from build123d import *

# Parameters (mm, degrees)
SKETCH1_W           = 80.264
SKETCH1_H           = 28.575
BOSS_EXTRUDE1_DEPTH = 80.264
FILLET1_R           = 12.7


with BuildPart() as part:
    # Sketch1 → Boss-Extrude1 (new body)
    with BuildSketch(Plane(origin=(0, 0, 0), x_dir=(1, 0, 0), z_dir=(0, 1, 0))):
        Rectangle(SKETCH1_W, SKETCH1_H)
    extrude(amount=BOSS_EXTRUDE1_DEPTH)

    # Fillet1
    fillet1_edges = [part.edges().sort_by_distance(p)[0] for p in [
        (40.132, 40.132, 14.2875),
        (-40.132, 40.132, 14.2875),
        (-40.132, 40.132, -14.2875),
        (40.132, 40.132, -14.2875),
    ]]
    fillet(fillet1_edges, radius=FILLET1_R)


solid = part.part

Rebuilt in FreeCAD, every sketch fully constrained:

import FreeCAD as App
import Part
import Sketcher

V = App.Vector
Q = App.Units.Quantity


def edges_at(feature, points):
    """Names of the edges that pass closest to the given points."""
    edges = feature.Shape.Edges
    near = lambda p: min(range(len(edges)), key=lambda i: edges[i].distToShape(Part.Vertex(*p))[0])
    return sorted({f"Edge{near(p) + 1}" for p in points})


def add_polygon(sketch, points):
    """Adds a closed chain of lines whose ends are joined by coincident constraints."""
    first, n = sketch.GeometryCount, len(points)
    for a, b in zip(points, points[1:] + points[:1]):
        sketch.addGeometry(Part.LineSegment(App.Vector(*a, 0), App.Vector(*b, 0)), False)
    for i in range(n):
        sketch.addConstraint(Sketcher.Constraint("Coincident", first + i, 2, first + (i + 1) % n, 1))

doc = App.newDocument("Part")
body = doc.addObject("PartDesign::Body", "Body")

# Sketch on XZ plane
sketch1 = body.newObject("Sketcher::SketchObject", "Sketch")
sketch1.AttachmentSupport = (doc.getObject("XZ_Plane"), [""])
sketch1.MapMode = "FlatFace"
add_polygon(sketch1, [(-40, -14), (-40, 14), (40, 14), (40, -14)])  # lines 0-3
sketch1.addConstraint(Sketcher.Constraint("Vertical", 0))
sketch1.addConstraint(Sketcher.Constraint("Horizontal", 1))
sketch1.addConstraint(Sketcher.Constraint("Vertical", 2))
sketch1.addConstraint(Sketcher.Constraint("Horizontal", 3))
sketch1.addConstraint(Sketcher.Constraint("Symmetric", 0, 2, 2, 2, -1, 1))
sketch1.addConstraint(Sketcher.Constraint("DistanceX", 1, 1, 1, 2, Q("3.16 in")))
sketch1.addConstraint(Sketcher.Constraint("DistanceY", 0, 1, 0, 2, Q("1.125 in")))
pad1 = body.newObject("PartDesign::Pad", "Pad")
pad1.Profile = sketch1
pad1.Length = Q("3.16 in")
pad1.Reversed = True
doc.recompute()

fillet = body.newObject("PartDesign::Fillet", "Fillet")
fillet.Base = (pad1, edges_at(pad1, [
    (40.132, 40.132, 14.287),
    (-40.132, 40.132, 14.287),
    (-40.132, 40.132, -14.287),
    (40.132, 40.132, -14.287),
]))
fillet.Radius = Q("0.5 in")

doc.recompute()
